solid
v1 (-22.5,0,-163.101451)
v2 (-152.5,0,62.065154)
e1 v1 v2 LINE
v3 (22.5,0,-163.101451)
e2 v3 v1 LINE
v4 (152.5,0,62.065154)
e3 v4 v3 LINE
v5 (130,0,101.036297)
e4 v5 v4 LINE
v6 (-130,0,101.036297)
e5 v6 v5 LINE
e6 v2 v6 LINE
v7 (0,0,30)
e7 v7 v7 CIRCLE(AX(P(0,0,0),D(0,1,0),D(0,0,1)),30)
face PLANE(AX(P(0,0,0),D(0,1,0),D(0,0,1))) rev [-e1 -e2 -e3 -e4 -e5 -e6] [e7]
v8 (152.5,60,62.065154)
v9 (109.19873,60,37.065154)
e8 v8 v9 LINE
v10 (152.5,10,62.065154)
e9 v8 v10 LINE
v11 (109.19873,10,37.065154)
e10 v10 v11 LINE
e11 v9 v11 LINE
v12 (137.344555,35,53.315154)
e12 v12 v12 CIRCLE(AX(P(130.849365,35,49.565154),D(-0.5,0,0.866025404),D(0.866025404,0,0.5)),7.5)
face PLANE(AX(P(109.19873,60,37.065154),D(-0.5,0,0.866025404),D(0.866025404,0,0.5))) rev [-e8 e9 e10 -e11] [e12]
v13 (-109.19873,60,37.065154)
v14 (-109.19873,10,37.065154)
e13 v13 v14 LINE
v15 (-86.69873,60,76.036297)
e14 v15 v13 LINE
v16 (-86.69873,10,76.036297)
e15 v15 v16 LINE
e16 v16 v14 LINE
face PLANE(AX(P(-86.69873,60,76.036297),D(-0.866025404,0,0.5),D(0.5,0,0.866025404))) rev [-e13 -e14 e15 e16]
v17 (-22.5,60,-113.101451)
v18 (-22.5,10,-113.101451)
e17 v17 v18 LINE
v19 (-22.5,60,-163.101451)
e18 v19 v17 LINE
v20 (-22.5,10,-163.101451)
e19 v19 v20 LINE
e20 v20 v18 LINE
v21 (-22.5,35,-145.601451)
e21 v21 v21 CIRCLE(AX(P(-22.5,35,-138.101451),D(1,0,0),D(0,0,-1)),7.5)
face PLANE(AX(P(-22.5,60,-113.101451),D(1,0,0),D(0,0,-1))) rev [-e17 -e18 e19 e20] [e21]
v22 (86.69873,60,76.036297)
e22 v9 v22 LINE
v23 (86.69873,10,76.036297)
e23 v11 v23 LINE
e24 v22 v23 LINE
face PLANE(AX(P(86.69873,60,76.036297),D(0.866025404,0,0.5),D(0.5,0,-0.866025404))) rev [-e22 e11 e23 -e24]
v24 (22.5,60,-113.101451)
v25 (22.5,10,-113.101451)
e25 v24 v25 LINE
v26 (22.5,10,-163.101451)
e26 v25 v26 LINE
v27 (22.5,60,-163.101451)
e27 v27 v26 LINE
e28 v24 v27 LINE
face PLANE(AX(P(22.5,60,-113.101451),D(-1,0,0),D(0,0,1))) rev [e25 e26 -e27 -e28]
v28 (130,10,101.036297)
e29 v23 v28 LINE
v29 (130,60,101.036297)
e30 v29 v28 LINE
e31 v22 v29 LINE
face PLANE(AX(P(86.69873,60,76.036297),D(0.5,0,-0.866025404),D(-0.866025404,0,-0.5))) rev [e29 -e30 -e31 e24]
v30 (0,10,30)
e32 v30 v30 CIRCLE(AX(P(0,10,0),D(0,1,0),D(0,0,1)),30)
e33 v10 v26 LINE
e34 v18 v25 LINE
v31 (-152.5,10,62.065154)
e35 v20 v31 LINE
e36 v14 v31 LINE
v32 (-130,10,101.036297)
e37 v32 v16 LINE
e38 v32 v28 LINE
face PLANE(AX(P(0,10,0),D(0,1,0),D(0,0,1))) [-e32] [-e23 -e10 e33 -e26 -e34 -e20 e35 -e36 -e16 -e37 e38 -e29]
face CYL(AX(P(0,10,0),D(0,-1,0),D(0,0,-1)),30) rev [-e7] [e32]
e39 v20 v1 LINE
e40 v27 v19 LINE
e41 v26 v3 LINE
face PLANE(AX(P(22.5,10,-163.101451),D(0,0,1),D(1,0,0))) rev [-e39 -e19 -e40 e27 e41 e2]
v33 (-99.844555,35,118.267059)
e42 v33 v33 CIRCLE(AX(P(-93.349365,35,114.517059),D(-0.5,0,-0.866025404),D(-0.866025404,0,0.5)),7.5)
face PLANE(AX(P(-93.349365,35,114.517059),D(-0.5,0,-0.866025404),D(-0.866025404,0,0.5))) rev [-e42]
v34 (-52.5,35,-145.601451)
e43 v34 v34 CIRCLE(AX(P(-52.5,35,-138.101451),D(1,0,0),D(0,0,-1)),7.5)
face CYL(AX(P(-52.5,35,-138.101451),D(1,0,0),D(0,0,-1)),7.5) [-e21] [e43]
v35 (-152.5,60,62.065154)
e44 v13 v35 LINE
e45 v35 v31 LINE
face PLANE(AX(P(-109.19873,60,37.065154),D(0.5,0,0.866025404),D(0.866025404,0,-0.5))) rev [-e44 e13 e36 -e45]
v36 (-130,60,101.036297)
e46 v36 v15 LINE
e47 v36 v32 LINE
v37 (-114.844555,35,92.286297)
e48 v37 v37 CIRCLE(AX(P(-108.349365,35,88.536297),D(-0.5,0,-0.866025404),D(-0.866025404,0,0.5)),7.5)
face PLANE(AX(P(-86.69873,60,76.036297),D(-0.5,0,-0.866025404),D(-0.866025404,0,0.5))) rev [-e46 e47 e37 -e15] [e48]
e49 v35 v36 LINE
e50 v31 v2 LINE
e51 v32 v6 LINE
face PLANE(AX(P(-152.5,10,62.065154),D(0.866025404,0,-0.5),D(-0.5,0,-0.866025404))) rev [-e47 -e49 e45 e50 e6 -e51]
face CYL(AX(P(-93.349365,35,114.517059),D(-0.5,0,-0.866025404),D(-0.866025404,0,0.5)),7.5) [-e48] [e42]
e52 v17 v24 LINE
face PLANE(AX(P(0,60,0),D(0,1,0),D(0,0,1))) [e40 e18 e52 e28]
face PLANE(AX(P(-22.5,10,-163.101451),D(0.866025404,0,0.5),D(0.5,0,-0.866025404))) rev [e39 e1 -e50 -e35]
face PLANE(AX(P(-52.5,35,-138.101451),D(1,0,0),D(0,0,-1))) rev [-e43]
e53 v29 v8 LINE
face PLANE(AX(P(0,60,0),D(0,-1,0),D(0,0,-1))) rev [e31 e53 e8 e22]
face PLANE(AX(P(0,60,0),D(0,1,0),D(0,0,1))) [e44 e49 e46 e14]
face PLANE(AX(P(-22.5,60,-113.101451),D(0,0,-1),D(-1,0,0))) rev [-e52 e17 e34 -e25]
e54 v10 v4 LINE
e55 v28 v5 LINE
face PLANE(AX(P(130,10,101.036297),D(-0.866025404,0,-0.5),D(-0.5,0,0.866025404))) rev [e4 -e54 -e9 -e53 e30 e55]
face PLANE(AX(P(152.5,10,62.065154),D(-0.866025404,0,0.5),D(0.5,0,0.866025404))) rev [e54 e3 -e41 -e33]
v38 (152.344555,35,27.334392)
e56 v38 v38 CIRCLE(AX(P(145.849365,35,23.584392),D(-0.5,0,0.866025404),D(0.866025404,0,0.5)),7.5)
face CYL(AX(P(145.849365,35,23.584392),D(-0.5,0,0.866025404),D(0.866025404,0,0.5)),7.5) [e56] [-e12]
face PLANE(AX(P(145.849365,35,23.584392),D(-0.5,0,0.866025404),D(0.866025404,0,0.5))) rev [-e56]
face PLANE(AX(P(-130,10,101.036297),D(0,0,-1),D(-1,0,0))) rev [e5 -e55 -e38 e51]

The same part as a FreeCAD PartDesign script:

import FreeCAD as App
import Part
import Sketcher
from FreeCAD import Vector
Q = App.Units.Quantity


def add_polygon(sketch, points):
    """Adds a closed chain of lines whose ends are joined by coincident constraints."""
    first, n = sketch.GeometryCount, len(points)
    for a, b in zip(points, points[1:] + points[:1]):
        sketch.addGeometry(Part.LineSegment(App.Vector(*a, 0), App.Vector(*b, 0)), False)
    for i in range(n):
        sketch.addConstraint(Sketcher.Constraint("Coincident", first + i, 2, first + (i + 1) % n, 1))

doc = App.newDocument("Part")
body = doc.addObject("PartDesign::Body", "Body")

# Sketch on XZ plane
sketch1 = body.newObject("Sketcher::SketchObject", "Sketch")
sketch1.AttachmentSupport = (doc.getObject("XZ_Plane"), [""])
sketch1.MapMode = "FlatFace"
add_polygon(sketch1, [(-152, 62), (-130, 101), (130, 101), (152, 62), (22, -163), (-22, -163)])  # lines 0-5
sketch1.addGeometry(Part.Circle(Vector(0, 0, 0), Vector(0, 0, 1), 30), False)  # 6
sketch1.addConstraint([
    Sketcher.Constraint("Horizontal", 1),
    Sketcher.Constraint("Horizontal", 4),
    Sketcher.Constraint("Coincident", 6, 3, -1, 1),
    Sketcher.Constraint("Symmetric", 2, 2, 5, 2, -2),
    Sketcher.Constraint("Parallel", 0, 3),
    Sketcher.Constraint("Parallel", 2, 5),
    Sketcher.Constraint("Equal", 0, 2),
    Sketcher.Constraint("Diameter", 6, Q("60 mm")),
    Sketcher.Constraint("DistanceX", 1, 1, 1, 2, Q("260 mm")),
    Sketcher.Constraint("DistanceX", 4, 2, 4, 1, Q("45 mm")),
    Sketcher.Constraint("Angle", 0, Q("60 deg")),
    Sketcher.Constraint("Distance", 0, Q("45 mm")),
    Sketcher.Constraint("DistanceY", 3, 2, -1, 1, Q("163.101451 mm")),
])
pad1 = body.newObject("PartDesign::Pad", "Pad")
pad1.Profile = sketch1
pad1.Length = 10
pad1.Reversed = True

# Sketch on XZ plane
sketch2 = body.newObject("Sketcher::SketchObject", "Sketch001")
sketch2.AttachmentSupport = (doc.getObject("XZ_Plane"), [""])
sketch2.MapMode = "FlatFace"
sketch2.AttachmentOffset = App.Placement(Vector(0, 0, -10), App.Rotation())
add_polygon(sketch2, [(-22, -163), (-22, -113), (22, -113), (22, -163)])  # lines 0-3
add_polygon(sketch2, [(-130, 101), (-87, 76), (-109, 37), (-152, 62)])  # lines 4-7
add_polygon(sketch2, [(87, 76), (130, 101), (152, 62), (109, 37)])  # lines 8-11
sketch2.addConstraint([
    Sketcher.Constraint("Vertical", 0),
    Sketcher.Constraint("Horizontal", 1),
    Sketcher.Constraint("Vertical", 2),
    Sketcher.Constraint("Horizontal", 3),
    Sketcher.Constraint("Symmetric", 7, 2, 8, 2, -2),
    Sketcher.Constraint("Symmetric", 6, 2, 9, 2, -2),
    Sketcher.Constraint("Symmetric", 5, 2, 10, 2, -2),
    Sketcher.Constraint("Symmetric", 4, 2, 11, 2, -2),
    Sketcher.Constraint("Perpendicular", 4, 5),
    Sketcher.Constraint("Perpendicular", 5, 6),
    Sketcher.Constraint("Perpendicular", 6, 7),
    Sketcher.Constraint("DistanceX", 1, 1, 1, 2, Q("45 mm")),
    Sketcher.Constraint("DistanceY", 0, 1, 0, 2, Q("50 mm")),
    Sketcher.Constraint("Angle", 4, Q("-30 deg")),
    Sketcher.Constraint("Distance", 4, Q("50 mm")),
    Sketcher.Constraint("Distance", 5, Q("45 mm")),
    Sketcher.Constraint("DistanceX", 7, 2, -1, 1, Q("130 mm")),
    Sketcher.Constraint("DistanceX", 6, 2, 0, 2, Q("130 mm")),
    Sketcher.Constraint("DistanceY", 0, 2, -1, 1, Q("113.101451 mm")),
    Sketcher.Constraint("DistanceY", 0, 2, 4, 2, Q("189.137748 mm")),
])
pad2 = body.newObject("PartDesign::Pad", "Pad001")
pad2.Profile = sketch2
pad2.Length = 50
pad2.Reversed = True

# Sketch on YZ plane
sketch3 = body.newObject("Sketcher::SketchObject", "Sketch002")
sketch3.AttachmentSupport = (doc.getObject("YZ_Plane"), [""])
sketch3.MapMode = "FlatFace"
sketch3.AttachmentOffset = App.Placement(Vector(0, 0, -22.5), App.Rotation())
sketch3.addGeometry(Part.Circle(Vector(35, -138, 0), Vector(0, 0, 1), 8), False)
sketch3.addConstraint([
    Sketcher.Constraint("Diameter", 0, Q("15 mm")),
    Sketcher.Constraint("DistanceX", -1, 1, 0, 3, Q("35 mm")),
    Sketcher.Constraint("DistanceY", 0, 3, -1, 1, Q("138.101451 mm")),
])
pad3 = body.newObject("PartDesign::Pad", "Pad002")
pad3.Profile = sketch3
pad3.Length = 30
pad3.Reversed = True

# Sketch on an angled plane
sketch4 = body.newObject("Sketcher::SketchObject", "Sketch003")
sketch4.Placement = App.Placement(Vector(133.014428, 0, 50.815154), App.Rotation(Vector(0.866025404, 0, 0.5), Vector(0, 1, 0), Vector(-0.5, 0, 0.866025404), "ZXY"))
sketch4.addGeometry(Part.Circle(Vector(-3, 35, 0), Vector(0, 0, 1), 8), False)
sketch4.addConstraint([
    Sketcher.Constraint("Diameter", 0, Q("15 mm")),
    Sketcher.Constraint("DistanceY", -1, 1, 0, 3, Q("35 mm")),
    Sketcher.Constraint("DistanceX", 0, 3, -1, 1, Q("2.5 mm")),
])
pad4 = body.newObject("PartDesign::Pad", "Pad003")
pad4.Profile = sketch4
pad4.Length = 30
pad4.Reversed = True

# Sketch on an angled plane
sketch5 = body.newObject("Sketcher::SketchObject", "Sketch004")
sketch5.Placement = App.Placement(Vector(-110.514428, 0, 89.786297), App.Rotation(Vector(-0.866025404, 0, 0.5), Vector(0, 1, 0), Vector(-0.5, 0, -0.866025404), "ZXY"))
sketch5.addGeometry(Part.Circle(Vector(-3, 35, 0), Vector(0, 0, 1), 8), False)
sketch5.addConstraint([
    Sketcher.Constraint("Diameter", 0, Q("15 mm")),
    Sketcher.Constraint("DistanceY", -1, 1, 0, 3, Q("35 mm")),
    Sketcher.Constraint("DistanceX", 0, 3, -1, 1, Q("2.5 mm")),
])
pad5 = body.newObject("PartDesign::Pad", "Pad004")
pad5.Profile = sketch5
pad5.Length = 30
pad5.Reversed = True

doc.recompute()
